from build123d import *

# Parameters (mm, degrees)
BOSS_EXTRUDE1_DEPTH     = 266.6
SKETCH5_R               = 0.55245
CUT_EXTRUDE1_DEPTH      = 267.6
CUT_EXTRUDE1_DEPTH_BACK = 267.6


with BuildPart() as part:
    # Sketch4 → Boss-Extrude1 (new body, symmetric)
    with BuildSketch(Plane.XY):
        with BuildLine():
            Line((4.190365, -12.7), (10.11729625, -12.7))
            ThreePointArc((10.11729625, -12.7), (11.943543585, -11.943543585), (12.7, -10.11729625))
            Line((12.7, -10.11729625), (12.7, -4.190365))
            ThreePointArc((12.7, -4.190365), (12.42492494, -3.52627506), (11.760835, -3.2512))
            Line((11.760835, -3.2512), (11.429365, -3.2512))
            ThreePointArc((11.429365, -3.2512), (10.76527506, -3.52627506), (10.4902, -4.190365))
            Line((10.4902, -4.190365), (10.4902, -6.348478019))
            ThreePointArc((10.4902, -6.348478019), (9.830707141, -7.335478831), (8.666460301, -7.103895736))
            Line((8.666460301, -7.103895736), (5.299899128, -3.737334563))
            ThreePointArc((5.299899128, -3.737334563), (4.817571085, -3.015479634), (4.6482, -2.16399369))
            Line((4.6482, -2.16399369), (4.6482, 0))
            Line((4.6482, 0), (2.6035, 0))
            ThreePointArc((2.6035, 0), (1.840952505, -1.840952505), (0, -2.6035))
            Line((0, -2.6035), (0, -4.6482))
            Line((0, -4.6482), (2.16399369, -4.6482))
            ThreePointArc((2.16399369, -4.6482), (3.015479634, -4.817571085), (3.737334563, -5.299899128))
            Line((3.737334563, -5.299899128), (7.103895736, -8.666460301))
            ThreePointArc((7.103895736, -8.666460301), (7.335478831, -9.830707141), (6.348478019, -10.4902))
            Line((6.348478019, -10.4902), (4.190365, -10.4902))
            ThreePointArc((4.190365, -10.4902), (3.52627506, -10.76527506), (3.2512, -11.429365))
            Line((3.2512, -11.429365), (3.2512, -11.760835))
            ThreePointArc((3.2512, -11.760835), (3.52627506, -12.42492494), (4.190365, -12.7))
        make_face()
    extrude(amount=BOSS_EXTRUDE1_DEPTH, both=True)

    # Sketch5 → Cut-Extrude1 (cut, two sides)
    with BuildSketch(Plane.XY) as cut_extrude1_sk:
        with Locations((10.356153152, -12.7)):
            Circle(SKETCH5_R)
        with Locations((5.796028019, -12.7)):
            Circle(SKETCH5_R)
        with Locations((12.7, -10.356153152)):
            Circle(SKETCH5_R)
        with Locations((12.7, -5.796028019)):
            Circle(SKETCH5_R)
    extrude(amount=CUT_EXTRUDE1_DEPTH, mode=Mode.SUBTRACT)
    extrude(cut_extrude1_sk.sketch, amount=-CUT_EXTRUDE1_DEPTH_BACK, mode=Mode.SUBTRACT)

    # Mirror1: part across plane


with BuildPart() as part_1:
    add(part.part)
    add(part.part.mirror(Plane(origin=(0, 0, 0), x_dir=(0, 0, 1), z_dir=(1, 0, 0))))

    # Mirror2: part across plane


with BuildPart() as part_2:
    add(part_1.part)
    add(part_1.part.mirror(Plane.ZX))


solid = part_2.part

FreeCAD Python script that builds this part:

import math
import FreeCAD as App
import Part
import Sketcher
Q = App.Units.Quantity

doc = App.newDocument("Part")
body = doc.addObject("PartDesign::Body", "Body")

# Sketch on XY plane
sketch1 = doc.addObject("Sketcher::SketchObject", "Sketch")
body.addObject(sketch1)
sketch1.AttachmentSupport = (doc.XY_Plane, [""])
sketch1.MapMode = "FlatFace"
sketch1.addGeometry(Part.LineSegment(App.Vector(4.19, -12.7, 0), App.Vector(10.12, -12.7, 0)), False)
sketch1.addGeometry(Part.ArcOfCircle(Part.Circle(App.Vector(10.12, -10.12, 0), App.Vector(0, 0, 1), 2.58), math.radians(-90), math.radians(0)), False)
sketch1.addGeometry(Part.LineSegment(App.Vector(12.7, -10.12, 0), App.Vector(12.7, -4.19, 0)), False)
sketch1.addGeometry(Part.ArcOfCircle(Part.Circle(App.Vector(11.76, -4.19, 0), App.Vector(0, 0, 1), 0.94), math.radians(0), math.radians(90)), False)
sketch1.addGeometry(Part.LineSegment(App.Vector(11.76, -3.25, 0), App.Vector(11.43, -3.25, 0)), False)
sketch1.addGeometry(Part.ArcOfCircle(Part.Circle(App.Vector(11.43, -4.19, 0), App.Vector(0, 0, 1), 0.94), math.radians(90), math.radians(180)), False)
sketch1.addGeometry(Part.LineSegment(App.Vector(10.49, -4.19, 0), App.Vector(10.49, -6.35, 0)), False)
sketch1.addGeometry(Part.ArcOfCircle(Part.Circle(App.Vector(9.42, -6.35, 0), App.Vector(0, 0, 1), 1.07), math.radians(-135), math.radians(0)), False)
sketch1.addGeometry(Part.LineSegment(App.Vector(8.67, -7.1, 0), App.Vector(5.3, -3.74, 0)), False)
sketch1.addGeometry(Part.ArcOfCircle(Part.Circle(App.Vector(6.87, -2.16, 0), App.Vector(0, 0, 1), 2.23), math.radians(-180), math.radians(-135)), False)
sketch1.addGeometry(Part.LineSegment(App.Vector(4.65, -2.16, 0), App.Vector(4.65, 0, 0)), False)
sketch1.addGeometry(Part.LineSegment(App.Vector(4.65, 0, 0), App.Vector(2.6, 0, 0)), False)
sketch1.addGeometry(Part.ArcOfCircle(Part.Circle(App.Vector(0, 0, 0), App.Vector(0, 0, 1), 2.6), math.radians(-90), math.radians(0)), False)
sketch1.addGeometry(Part.LineSegment(App.Vector(0, -2.6, 0), App.Vector(0, -4.65, 0)), False)
sketch1.addGeometry(Part.LineSegment(App.Vector(0, -4.65, 0), App.Vector(2.16, -4.65, 0)), False)
sketch1.addGeometry(Part.ArcOfCircle(Part.Circle(App.Vector(2.16, -6.87, 0), App.Vector(0, 0, 1), 2.23), math.radians(45), math.radians(90)), False)
sketch1.addGeometry(Part.LineSegment(App.Vector(3.74, -5.3, 0), App.Vector(7.1, -8.67, 0)), False)
sketch1.addGeometry(Part.ArcOfCircle(Part.Circle(App.Vector(6.35, -9.42, 0), App.Vector(0, 0, 1), 1.07), math.radians(-90), math.radians(45)), False)
sketch1.addGeometry(Part.LineSegment(App.Vector(6.35, -10.49, 0), App.Vector(4.19, -10.49, 0)), False)
sketch1.addGeometry(Part.ArcOfCircle(Part.Circle(App.Vector(4.19, -11.43, 0), App.Vector(0, 0, 1), 0.94), math.radians(90), math.radians(180)), False)
sketch1.addGeometry(Part.LineSegment(App.Vector(3.25, -11.43, 0), App.Vector(3.25, -11.76, 0)), False)
sketch1.addGeometry(Part.ArcOfCircle(Part.Circle(App.Vector(4.19, -11.76, 0), App.Vector(0, 0, 1), 0.94), math.radians(-180), math.radians(-90)), False)
sketch1.addConstraint(Sketcher.Constraint("Tangent", 0, 2, 1, 1))
sketch1.addConstraint(Sketcher.Constraint("Tangent", 1, 2, 2, 1))
sketch1.addConstraint(Sketcher.Constraint("Tangent", 2, 2, 3, 1))
sketch1.addConstraint(Sketcher.Constraint("Tangent", 3, 2, 4, 1))
sketch1.addConstraint(Sketcher.Constraint("Tangent", 4, 2, 5, 1))
sketch1.addConstraint(Sketcher.Constraint("Tangent", 5, 2, 6, 1))
sketch1.addConstraint(Sketcher.Constraint("Tangent", 6, 2, 7, 2))
sketch1.addConstraint(Sketcher.Constraint("Tangent", 7, 1, 8, 1))
sketch1.addConstraint(Sketcher.Constraint("Tangent", 8, 2, 9, 2))
sketch1.addConstraint(Sketcher.Constraint("Tangent", 9, 1, 10, 1))
sketch1.addConstraint(Sketcher.Constraint("Coincident", 10, 2, 11, 1))
sketch1.addConstraint(Sketcher.Constraint("Coincident", 11, 2, 12, 2))
sketch1.addConstraint(Sketcher.Constraint("Coincident", 12, 1, 13, 1))
sketch1.addConstraint(Sketcher.Constraint("Coincident", 13, 2, 14, 1))
sketch1.addConstraint(Sketcher.Constraint("Tangent", 14, 2, 15, 2))
sketch1.addConstraint(Sketcher.Constraint("Tangent", 15, 1, 16, 1))
sketch1.addConstraint(Sketcher.Constraint("Tangent", 16, 2, 17, 2))
sketch1.addConstraint(Sketcher.Constraint("Tangent", 17, 1, 18, 1))
sketch1.addConstraint(Sketcher.Constraint("Tangent", 18, 2, 19, 1))
sketch1.addConstraint(Sketcher.Constraint("Tangent", 19, 2, 20, 1))
sketch1.addConstraint(Sketcher.Constraint("Tangent", 20, 2, 21, 1))
sketch1.addConstraint(Sketcher.Constraint("Tangent", 21, 2, 0, 1))
sketch1.addConstraint(Sketcher.Constraint("Horizontal", 0))
sketch1.addConstraint(Sketcher.Constraint("Vertical", 2))
sketch1.addConstraint(Sketcher.Constraint("Horizontal", 4))
sketch1.addConstraint(Sketcher.Constraint("Vertical", 6))
sketch1.addConstraint(Sketcher.Constraint("Vertical", 10))
sketch1.addConstraint(Sketcher.Constraint("Horizontal", 11))
sketch1.addConstraint(Sketcher.Constraint("Vertical", 13))
sketch1.addConstraint(Sketcher.Constraint("Horizontal", 14))
sketch1.addConstraint(Sketcher.Constraint("Horizontal", 18))
sketch1.addConstraint(Sketcher.Constraint("Vertical", 20))
sketch1.addConstraint(Sketcher.Constraint("Coincident", 12, 3, -1, 1))
sketch1.addConstraint(Sketcher.Constraint("Equal", 3, 5))
sketch1.addConstraint(Sketcher.Constraint("Equal", 9, 15))
sketch1.addConstraint(Sketcher.Constraint("Equal", 7, 17))
sketch1.addConstraint(Sketcher.Constraint("Equal", 5, 19))
sketch1.addConstraint(Sketcher.Constraint("Equal", 19, 21))
sketch1.addConstraint(Sketcher.Constraint("PointOnObject", 10, 2, -1))
sketch1.addConstraint(Sketcher.Constraint("PointOnObject", 12, 1, -2))
sketch1.addConstraint(Sketcher.Constraint("Parallel", 8, 16))
sketch1.addConstraint(Sketcher.Constraint("Equal", 0, 2))
sketch1.addConstraint(Sketcher.Constraint("Equal", 18, 6))
sketch1.addConstraint(Sketcher.Constraint("Equal", 14, 10))
sketch1.addConstraint(Sketcher.Constraint("Equal", 11, 13))
sketch1.addConstraint(Sketcher.Constraint("Equal", 4, 20))
sketch1.addConstraint(Sketcher.Constraint("Equal", 8, 16))
sketch1.addConstraint(Sketcher.Constraint("DistanceY", 0, 2, -1, 1, Q("12.7 mm")))
sketch1.addConstraint(Sketcher.Constraint("Radius", 12, Q("2.6035 mm")))
sketch1.addConstraint(Sketcher.Constraint("Radius", 7, Q("1.068322 mm")))
sketch1.addConstraint(Sketcher.Constraint("Radius", 9, Q("2.22504 mm")))
sketch1.addConstraint(Sketcher.Constraint("DistanceX", 11, 2, 11, 1, Q("2.0447 mm")))
sketch1.addConstraint(Sketcher.Constraint("Radius", 1, Q("2.582704 mm")))
sketch1.addConstraint(Sketcher.Constraint("Radius", 3, Q("0.939165 mm")))
sketch1.addConstraint(Sketcher.Constraint("DistanceX", 9, 1, 5, 2, Q("5.842 mm")))
sketch1.addConstraint(Sketcher.Constraint("DistanceX", 0, 1, 0, 2, Q("5.926931 mm")))
sketch1.addConstraint(Sketcher.Constraint("DistanceX", 17, 3, 7, 3, Q("3.0734 mm")))
pad1 = doc.addObject("PartDesign::Pad", "Pad")
body.addObject(pad1)
pad1.Profile = sketch1
pad1.Length = 533.2
pad1.Midplane = True

# Sketch on XY plane
sketch2 = doc.addObject("Sketcher::SketchObject", "Sketch001")
body.addObject(sketch2)
sketch2.AttachmentSupport = (doc.XY_Plane, [""])
sketch2.MapMode = "FlatFace"
sketch2.addGeometry(Part.Circle(App.Vector(10.4, -12.7, 0), App.Vector(0, 0, 1), 0.6), False)
sketch2.addGeometry(Part.Circle(App.Vector(5.8, -12.7, 0), App.Vector(0, 0, 1), 0.6), False)
sketch2.addGeometry(Part.Circle(App.Vector(12.7, -10.4, 0), App.Vector(0, 0, 1), 0.6), False)
sketch2.addGeometry(Part.Circle(App.Vector(12.7, -5.8, 0), App.Vector(0, 0, 1), 0.6), False)
sketch2.addConstraint(Sketcher.Constraint("Equal", 0, 1))
sketch2.addConstraint(Sketcher.Constraint("Equal", 1, 2))
sketch2.addConstraint(Sketcher.Constraint("Equal", 2, 3))
sketch2.addConstraint(Sketcher.Constraint("Horizontal", 0, 3, 1, 3))
sketch2.addConstraint(Sketcher.Constraint("Vertical", 2, 3, 3, 3))
sketch2.addConstraint(Sketcher.Constraint("Diameter", 0, Q("1.1049 mm")))
sketch2.addConstraint(Sketcher.Constraint("DistanceY", 0, 3, -1, 1, Q("12.7 mm")))
sketch2.addConstraint(Sketcher.Constraint("DistanceX", -1, 1, 2, 3, Q("12.7 mm")))
sketch2.addConstraint(Sketcher.Constraint("DistanceX", -1, 1, 1, 3, Q("5.796028 mm")))
sketch2.addConstraint(Sketcher.Constraint("DistanceY", 3, 3, -1, 1, Q("5.796028 mm")))
sketch2.addConstraint(Sketcher.Constraint("DistanceX", -1, 1, 0, 3, Q("10.356153 mm")))
sketch2.addConstraint(Sketcher.Constraint("DistanceY", 2, 3, -1, 1, Q("10.356153 mm")))
pocket1 = doc.addObject("PartDesign::Pocket", "Pocket")
body.addObject(pocket1)
pocket1.Profile = sketch2
pocket1.Type = "ThroughAll"
pocket1.Midplane = True
body2 = doc.addObject("PartDesign::Body", "Body001")
doc.recompute()

body2.BaseFeature = body
doc.recompute()

mirroring = doc.addObject("Part::Mirroring", "Mirroring")
mirroring.Source = body
mirroring.Base = App.Vector(0, 0, 0)
mirroring.Normal = App.Vector(1, 0, 0)
body3 = doc.addObject("PartDesign::Body", "Body002")
body3.BaseFeature = mirroring
boolean = doc.addObject("PartDesign::Boolean", "Boolean")
body2.addObject(boolean)
boolean.Type = "Fuse"
boolean.addObjects([body3])
doc.recompute()
body4 = doc.addObject("PartDesign::Body", "Body003")
doc.recompute()

body4.BaseFeature = body2
doc.recompute()

mirroring2 = doc.addObject("Part::Mirroring", "Mirroring001")
mirroring2.Source = body2
mirroring2.Base = App.Vector(0, 0, 0)
mirroring2.Normal = App.Vector(0, 1, 0)
body5 = doc.addObject("PartDesign::Body", "Body004")
body5.BaseFeature = mirroring2
boolean2 = doc.addObject("PartDesign::Boolean", "Boolean001")
body4.addObject(boolean2)
boolean2.Type = "Fuse"
boolean2.addObjects([body5])
doc.recompute()
mirroring.Visibility = False
mirroring2.Visibility = False

doc.recompute()
